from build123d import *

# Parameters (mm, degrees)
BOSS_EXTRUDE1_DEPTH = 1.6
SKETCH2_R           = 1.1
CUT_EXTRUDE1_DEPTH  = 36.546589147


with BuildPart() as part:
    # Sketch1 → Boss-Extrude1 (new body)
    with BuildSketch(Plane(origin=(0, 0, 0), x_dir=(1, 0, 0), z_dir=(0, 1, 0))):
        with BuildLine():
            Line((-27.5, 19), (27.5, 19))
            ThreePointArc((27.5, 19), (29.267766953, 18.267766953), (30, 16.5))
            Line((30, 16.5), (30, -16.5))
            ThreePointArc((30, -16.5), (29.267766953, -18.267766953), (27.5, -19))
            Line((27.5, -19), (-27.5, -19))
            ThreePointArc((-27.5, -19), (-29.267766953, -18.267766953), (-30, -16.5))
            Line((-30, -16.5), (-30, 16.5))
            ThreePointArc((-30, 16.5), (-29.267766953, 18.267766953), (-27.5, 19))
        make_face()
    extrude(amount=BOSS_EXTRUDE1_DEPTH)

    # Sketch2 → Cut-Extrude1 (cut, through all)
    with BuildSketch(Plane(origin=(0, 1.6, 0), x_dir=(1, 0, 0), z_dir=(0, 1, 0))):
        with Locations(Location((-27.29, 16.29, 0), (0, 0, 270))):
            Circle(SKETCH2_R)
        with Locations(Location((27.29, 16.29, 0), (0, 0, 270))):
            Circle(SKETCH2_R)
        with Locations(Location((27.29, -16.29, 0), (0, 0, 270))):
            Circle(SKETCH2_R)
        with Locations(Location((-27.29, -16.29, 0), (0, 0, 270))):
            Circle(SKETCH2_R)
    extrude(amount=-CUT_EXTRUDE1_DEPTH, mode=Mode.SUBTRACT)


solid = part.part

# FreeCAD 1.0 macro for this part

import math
import FreeCAD as App
import Part
import Sketcher

V = App.Vector

doc = App.newDocument("Part")
body = doc.addObject("PartDesign::Body", "Body")

sketch1 = body.newObject("Sketcher::SketchObject", "Sketch")
sketch1.AttachmentSupport = (doc.getObject("XZ_Plane"), [""])
sketch1.MapMode = "FlatFace"
sketch1.addGeometry(Part.LineSegment(V(27.5, -19, 0), V(-27.5, -19, 0)), False)
sketch1.addGeometry(Part.ArcOfCircle(Part.Circle(V(-27.5, -16.5, 0), V(0, 0, 1), 2.5), math.radians(180), math.radians(270)), False)
sketch1.addGeometry(Part.LineSegment(V(-30, -16.5, 0), V(-30, 16.5, 0)), False)
sketch1.addGeometry(Part.ArcOfCircle(Part.Circle(V(-27.5, 16.5, 0), V(0, 0, 1), 2.5), math.radians(90), math.radians(180)), False)
sketch1.addGeometry(Part.LineSegment(V(-27.5, 19, 0), V(27.5, 19, 0)), False)
sketch1.addGeometry(Part.ArcOfCircle(Part.Circle(V(27.5, 16.5, 0), V(0, 0, 1), 2.5), math.radians(0), math.radians(90)), False)
sketch1.addGeometry(Part.LineSegment(V(30, 16.5, 0), V(30, -16.5, 0)), False)
sketch1.addGeometry(Part.ArcOfCircle(Part.Circle(V(27.5, -16.5, 0), V(0, 0, 1), 2.5), math.radians(-90), math.radians(0)), False)
sketch1.addConstraint(Sketcher.Constraint("Tangent", 0, 2, 1, 2))
sketch1.addConstraint(Sketcher.Constraint("Tangent", 1, 1, 2, 1))
sketch1.addConstraint(Sketcher.Constraint("Tangent", 2, 2, 3, 2))
sketch1.addConstraint(Sketcher.Constraint("Tangent", 3, 1, 4, 1))
sketch1.addConstraint(Sketcher.Constraint("Tangent", 4, 2, 5, 2))
sketch1.addConstraint(Sketcher.Constraint("Tangent", 5, 1, 6, 1))
sketch1.addConstraint(Sketcher.Constraint("Tangent", 6, 2, 7, 2))
sketch1.addConstraint(Sketcher.Constraint("Tangent", 7, 1, 0, 1))
sketch1.addConstraint(Sketcher.Constraint("Horizontal", 0))
sketch1.addConstraint(Sketcher.Constraint("Vertical", 2))
sketch1.addConstraint(Sketcher.Constraint("Horizontal", 4))
sketch1.addConstraint(Sketcher.Constraint("Vertical", 6))
sketch1.addConstraint(Sketcher.Constraint("Equal", 1, 3))
sketch1.addConstraint(Sketcher.Constraint("Equal", 3, 5))
sketch1.addConstraint(Sketcher.Constraint("Equal", 5, 7))
sketch1.addConstraint(Sketcher.Constraint("Symmetric", 1, 3, 5, 3, -1, 1))
sketch1.addConstraint(Sketcher.Constraint("Radius", 1, 2.5))
sketch1.addConstraint(Sketcher.Constraint("DistanceX", 0, 2, 0, 1, 55.0))
sketch1.addConstraint(Sketcher.Constraint("DistanceY", 2, 1, 2, 2, 33.0))
pad1 = body.newObject("PartDesign::Pad", "Pad")
pad1.Profile = sketch1
pad1.Length = 1.6
pad1.Reversed = True

sketch2 = body.newObject("Sketcher::SketchObject", "Sketch001")
sketch2.AttachmentSupport = (doc.getObject("XZ_Plane"), [""])
sketch2.MapMode = "FlatFace"
sketch2.AttachmentOffset = App.Placement(V(0, 0, -1.6), App.Rotation())
sketch2.addGeometry(Part.Circle(V(-27.29, -16.29, 0), V(0, 0, 1), 1.1), False)
sketch2.addGeometry(Part.Circle(V(27.29, -16.29, 0), V(0, 0, 1), 1.1), False)
sketch2.addGeometry(Part.Circle(V(27.29, 16.29, 0), V(0, 0, 1), 1.1), False)
sketch2.addGeometry(Part.Circle(V(-27.29, 16.29, 0), V(0, 0, 1), 1.1), False)
sketch2.addConstraint(Sketcher.Constraint("Equal", 0, 1))
sketch2.addConstraint(Sketcher.Constraint("Equal", 1, 2))
sketch2.addConstraint(Sketcher.Constraint("Equal", 2, 3))
sketch2.addConstraint(Sketcher.Constraint("Symmetric", 0, 3, 2, 3, -1, 1))
sketch2.addConstraint(Sketcher.Constraint("Symmetric", 1, 3, 3, 3, -1, 1))
sketch2.addConstraint(Sketcher.Constraint("Symmetric", 0, 3, 1, 3, -2))
sketch2.addConstraint(Sketcher.Constraint("Diameter", 0, 2.2))
sketch2.addConstraint(Sketcher.Constraint("DistanceX", 0, 3, -1, 1, 27.29))
sketch2.addConstraint(Sketcher.Constraint("DistanceY", 0, 3, -1, 1, 16.29))
pocket1 = body.newObject("PartDesign::Pocket", "Pocket")
pocket1.Profile = sketch2
pocket1.Type = "ThroughAll"
pocket1.Reversed = True

doc.recompute()
